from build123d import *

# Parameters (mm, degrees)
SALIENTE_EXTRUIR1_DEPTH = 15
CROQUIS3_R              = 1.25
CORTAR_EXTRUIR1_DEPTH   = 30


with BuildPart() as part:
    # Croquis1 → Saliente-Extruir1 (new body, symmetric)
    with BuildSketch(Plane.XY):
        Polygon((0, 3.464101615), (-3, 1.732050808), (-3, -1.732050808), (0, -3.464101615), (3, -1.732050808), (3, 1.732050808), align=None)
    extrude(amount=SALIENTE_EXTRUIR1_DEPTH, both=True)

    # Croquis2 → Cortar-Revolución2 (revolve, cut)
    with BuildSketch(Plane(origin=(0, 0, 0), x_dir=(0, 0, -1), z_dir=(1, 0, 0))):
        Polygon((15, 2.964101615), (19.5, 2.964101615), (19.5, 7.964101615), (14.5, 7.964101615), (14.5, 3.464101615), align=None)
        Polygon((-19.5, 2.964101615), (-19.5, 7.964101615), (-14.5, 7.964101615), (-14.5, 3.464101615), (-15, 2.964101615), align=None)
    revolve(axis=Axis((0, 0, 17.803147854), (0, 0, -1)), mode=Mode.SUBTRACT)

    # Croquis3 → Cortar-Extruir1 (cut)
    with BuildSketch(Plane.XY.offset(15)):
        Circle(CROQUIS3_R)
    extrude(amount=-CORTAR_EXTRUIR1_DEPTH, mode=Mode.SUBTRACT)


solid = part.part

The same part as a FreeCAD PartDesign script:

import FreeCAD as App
import Part
import Sketcher

V = App.Vector
Q = App.Units.Quantity

doc = App.newDocument("Part")
body = doc.addObject("PartDesign::Body", "Body")

sketch1 = body.newObject("Sketcher::SketchObject", "Sketch")
sketch1.AttachmentSupport = (doc.getObject("XY_Plane"), [""])
sketch1.MapMode = "FlatFace"
sketch1.addGeometry([
    Part.LineSegment(V(0, 3.5, 0), V(-3, 1.7, 0)),
    Part.LineSegment(V(-3, 1.7, 0), V(-3, -1.7, 0)),
    Part.LineSegment(V(-3, -1.7, 0), V(0, -3.5, 0)),
    Part.LineSegment(V(0, -3.5, 0), V(3, -1.7, 0)),
    Part.LineSegment(V(3, -1.7, 0), V(3, 1.7, 0)),
    Part.LineSegment(V(3, 1.7, 0), V(0, 3.5, 0)),
], False)
sketch1.addConstraint([
    Sketcher.Constraint("Coincident", 0, 2, 1, 1),
    Sketcher.Constraint("Coincident", 1, 2, 2, 1),
    Sketcher.Constraint("Coincident", 2, 2, 3, 1),
    Sketcher.Constraint("Coincident", 3, 2, 4, 1),
    Sketcher.Constraint("Coincident", 4, 2, 5, 1),
    Sketcher.Constraint("Coincident", 5, 2, 0, 1),
    Sketcher.Constraint("Vertical", 1),
    Sketcher.Constraint("Vertical", 4),
    Sketcher.Constraint("Symmetric", 0, 2, 3, 2, -1, 1),
    Sketcher.Constraint("Symmetric", 2, 2, 5, 2, -1, 1),
    Sketcher.Constraint("PointOnObject", 2, 2, -2),
    Sketcher.Constraint("Parallel", 2, 5),
    Sketcher.Constraint("Horizontal", 1, 2, 3, 2),
    Sketcher.Constraint("Angle", 0, Q("-150 deg")),
    Sketcher.Constraint("DistanceX", 0, 2, -1, 1, Q("3 mm")),
    Sketcher.Constraint("DistanceY", 1, 2, 1, 1, Q("3.464102 mm")),
])
pad1 = body.newObject("PartDesign::Pad", "Pad")
pad1.Profile = sketch1
pad1.Length = 30
pad1.Midplane = True

sketch2 = body.newObject("Sketcher::SketchObject", "Sketch001")
sketch2.AttachmentSupport = (doc.getObject("YZ_Plane"), [""])
sketch2.MapMode = "FlatFace"
sketch2.addGeometry([
    Part.LineSegment(V(3, -15, 0), V(3, -19.5, 0)),
    Part.LineSegment(V(3, -19.5, 0), V(8, -19.5, 0)),
    Part.LineSegment(V(8, -19.5, 0), V(8, -14.5, 0)),
    Part.LineSegment(V(8, -14.5, 0), V(3.5, -14.5, 0)),
    Part.LineSegment(V(3.5, -14.5, 0), V(3, -15, 0)),
    Part.LineSegment(V(8, 19.5, 0), V(3, 19.5, 0)),
    Part.LineSegment(V(3, 19.5, 0), V(3, 15, 0)),
    Part.LineSegment(V(3, 15, 0), V(3.5, 14.5, 0)),
    Part.LineSegment(V(3.5, 14.5, 0), V(8, 14.5, 0)),
    Part.LineSegment(V(8, 14.5, 0), V(8, 19.5, 0)),
], False)
sketch2.addConstraint([
    Sketcher.Constraint("Coincident", 0, 2, 1, 1),
    Sketcher.Constraint("Coincident", 1, 2, 2, 1),
    Sketcher.Constraint("Coincident", 2, 2, 3, 1),
    Sketcher.Constraint("Coincident", 3, 2, 4, 1),
    Sketcher.Constraint("Coincident", 4, 2, 0, 1),
    Sketcher.Constraint("Coincident", 5, 2, 6, 1),
    Sketcher.Constraint("Coincident", 6, 2, 7, 1),
    Sketcher.Constraint("Coincident", 7, 2, 8, 1),
    Sketcher.Constraint("Coincident", 8, 2, 9, 1),
    Sketcher.Constraint("Coincident", 9, 2, 5, 1),
    Sketcher.Constraint("Vertical", 0),
    Sketcher.Constraint("Horizontal", 1),
    Sketcher.Constraint("Vertical", 2),
    Sketcher.Constraint("Horizontal", 3),
    Sketcher.Constraint("Horizontal", 5),
    Sketcher.Constraint("Vertical", 6),
    Sketcher.Constraint("Horizontal", 8),
    Sketcher.Constraint("Vertical", 9),
    Sketcher.Constraint("Symmetric", 0, 2, 5, 2, -1),
    Sketcher.Constraint("Symmetric", 3, 2, 7, 2, -1),
    Sketcher.Constraint("Perpendicular", 4, 7),
    Sketcher.Constraint("Vertical", 2, 2, 8, 2),
    Sketcher.Constraint("Equal", 8, 0),
    Sketcher.Constraint("Equal", 5, 2),
    Sketcher.Constraint("DistanceX", 1, 1, 1, 2, Q("5 mm")),
    Sketcher.Constraint("DistanceX", 3, 2, 3, 1, Q("4.5 mm")),
    Sketcher.Constraint("DistanceY", 4, 2, -1, 1, Q("15 mm")),
    Sketcher.Constraint("DistanceX", -1, 1, 0, 2, Q("2.964102 mm")),
])
groove = body.newObject("PartDesign::Groove", "Groove")
groove.Profile = sketch2
groove.ReferenceAxis = (sketch2, ["V_Axis"])
groove.Angle = 360

sketch3 = body.newObject("Sketcher::SketchObject", "Sketch002")
sketch3.AttachmentSupport = (doc.getObject("XY_Plane"), [""])
sketch3.MapMode = "FlatFace"
sketch3.AttachmentOffset = App.Placement(V(0, 0, 15), App.Rotation())
sketch3.addGeometry(Part.Circle(V(0, 0, 0), V(0, 0, 1), 1.2), False)
sketch3.addConstraint([
    Sketcher.Constraint("Coincident", 0, 3, -1, 1),
    Sketcher.Constraint("Diameter", 0, Q("2.5 mm")),
])
pocket1 = body.newObject("PartDesign::Pocket", "Pocket")
pocket1.Profile = sketch3
pocket1.Length = 30

doc.recompute()
